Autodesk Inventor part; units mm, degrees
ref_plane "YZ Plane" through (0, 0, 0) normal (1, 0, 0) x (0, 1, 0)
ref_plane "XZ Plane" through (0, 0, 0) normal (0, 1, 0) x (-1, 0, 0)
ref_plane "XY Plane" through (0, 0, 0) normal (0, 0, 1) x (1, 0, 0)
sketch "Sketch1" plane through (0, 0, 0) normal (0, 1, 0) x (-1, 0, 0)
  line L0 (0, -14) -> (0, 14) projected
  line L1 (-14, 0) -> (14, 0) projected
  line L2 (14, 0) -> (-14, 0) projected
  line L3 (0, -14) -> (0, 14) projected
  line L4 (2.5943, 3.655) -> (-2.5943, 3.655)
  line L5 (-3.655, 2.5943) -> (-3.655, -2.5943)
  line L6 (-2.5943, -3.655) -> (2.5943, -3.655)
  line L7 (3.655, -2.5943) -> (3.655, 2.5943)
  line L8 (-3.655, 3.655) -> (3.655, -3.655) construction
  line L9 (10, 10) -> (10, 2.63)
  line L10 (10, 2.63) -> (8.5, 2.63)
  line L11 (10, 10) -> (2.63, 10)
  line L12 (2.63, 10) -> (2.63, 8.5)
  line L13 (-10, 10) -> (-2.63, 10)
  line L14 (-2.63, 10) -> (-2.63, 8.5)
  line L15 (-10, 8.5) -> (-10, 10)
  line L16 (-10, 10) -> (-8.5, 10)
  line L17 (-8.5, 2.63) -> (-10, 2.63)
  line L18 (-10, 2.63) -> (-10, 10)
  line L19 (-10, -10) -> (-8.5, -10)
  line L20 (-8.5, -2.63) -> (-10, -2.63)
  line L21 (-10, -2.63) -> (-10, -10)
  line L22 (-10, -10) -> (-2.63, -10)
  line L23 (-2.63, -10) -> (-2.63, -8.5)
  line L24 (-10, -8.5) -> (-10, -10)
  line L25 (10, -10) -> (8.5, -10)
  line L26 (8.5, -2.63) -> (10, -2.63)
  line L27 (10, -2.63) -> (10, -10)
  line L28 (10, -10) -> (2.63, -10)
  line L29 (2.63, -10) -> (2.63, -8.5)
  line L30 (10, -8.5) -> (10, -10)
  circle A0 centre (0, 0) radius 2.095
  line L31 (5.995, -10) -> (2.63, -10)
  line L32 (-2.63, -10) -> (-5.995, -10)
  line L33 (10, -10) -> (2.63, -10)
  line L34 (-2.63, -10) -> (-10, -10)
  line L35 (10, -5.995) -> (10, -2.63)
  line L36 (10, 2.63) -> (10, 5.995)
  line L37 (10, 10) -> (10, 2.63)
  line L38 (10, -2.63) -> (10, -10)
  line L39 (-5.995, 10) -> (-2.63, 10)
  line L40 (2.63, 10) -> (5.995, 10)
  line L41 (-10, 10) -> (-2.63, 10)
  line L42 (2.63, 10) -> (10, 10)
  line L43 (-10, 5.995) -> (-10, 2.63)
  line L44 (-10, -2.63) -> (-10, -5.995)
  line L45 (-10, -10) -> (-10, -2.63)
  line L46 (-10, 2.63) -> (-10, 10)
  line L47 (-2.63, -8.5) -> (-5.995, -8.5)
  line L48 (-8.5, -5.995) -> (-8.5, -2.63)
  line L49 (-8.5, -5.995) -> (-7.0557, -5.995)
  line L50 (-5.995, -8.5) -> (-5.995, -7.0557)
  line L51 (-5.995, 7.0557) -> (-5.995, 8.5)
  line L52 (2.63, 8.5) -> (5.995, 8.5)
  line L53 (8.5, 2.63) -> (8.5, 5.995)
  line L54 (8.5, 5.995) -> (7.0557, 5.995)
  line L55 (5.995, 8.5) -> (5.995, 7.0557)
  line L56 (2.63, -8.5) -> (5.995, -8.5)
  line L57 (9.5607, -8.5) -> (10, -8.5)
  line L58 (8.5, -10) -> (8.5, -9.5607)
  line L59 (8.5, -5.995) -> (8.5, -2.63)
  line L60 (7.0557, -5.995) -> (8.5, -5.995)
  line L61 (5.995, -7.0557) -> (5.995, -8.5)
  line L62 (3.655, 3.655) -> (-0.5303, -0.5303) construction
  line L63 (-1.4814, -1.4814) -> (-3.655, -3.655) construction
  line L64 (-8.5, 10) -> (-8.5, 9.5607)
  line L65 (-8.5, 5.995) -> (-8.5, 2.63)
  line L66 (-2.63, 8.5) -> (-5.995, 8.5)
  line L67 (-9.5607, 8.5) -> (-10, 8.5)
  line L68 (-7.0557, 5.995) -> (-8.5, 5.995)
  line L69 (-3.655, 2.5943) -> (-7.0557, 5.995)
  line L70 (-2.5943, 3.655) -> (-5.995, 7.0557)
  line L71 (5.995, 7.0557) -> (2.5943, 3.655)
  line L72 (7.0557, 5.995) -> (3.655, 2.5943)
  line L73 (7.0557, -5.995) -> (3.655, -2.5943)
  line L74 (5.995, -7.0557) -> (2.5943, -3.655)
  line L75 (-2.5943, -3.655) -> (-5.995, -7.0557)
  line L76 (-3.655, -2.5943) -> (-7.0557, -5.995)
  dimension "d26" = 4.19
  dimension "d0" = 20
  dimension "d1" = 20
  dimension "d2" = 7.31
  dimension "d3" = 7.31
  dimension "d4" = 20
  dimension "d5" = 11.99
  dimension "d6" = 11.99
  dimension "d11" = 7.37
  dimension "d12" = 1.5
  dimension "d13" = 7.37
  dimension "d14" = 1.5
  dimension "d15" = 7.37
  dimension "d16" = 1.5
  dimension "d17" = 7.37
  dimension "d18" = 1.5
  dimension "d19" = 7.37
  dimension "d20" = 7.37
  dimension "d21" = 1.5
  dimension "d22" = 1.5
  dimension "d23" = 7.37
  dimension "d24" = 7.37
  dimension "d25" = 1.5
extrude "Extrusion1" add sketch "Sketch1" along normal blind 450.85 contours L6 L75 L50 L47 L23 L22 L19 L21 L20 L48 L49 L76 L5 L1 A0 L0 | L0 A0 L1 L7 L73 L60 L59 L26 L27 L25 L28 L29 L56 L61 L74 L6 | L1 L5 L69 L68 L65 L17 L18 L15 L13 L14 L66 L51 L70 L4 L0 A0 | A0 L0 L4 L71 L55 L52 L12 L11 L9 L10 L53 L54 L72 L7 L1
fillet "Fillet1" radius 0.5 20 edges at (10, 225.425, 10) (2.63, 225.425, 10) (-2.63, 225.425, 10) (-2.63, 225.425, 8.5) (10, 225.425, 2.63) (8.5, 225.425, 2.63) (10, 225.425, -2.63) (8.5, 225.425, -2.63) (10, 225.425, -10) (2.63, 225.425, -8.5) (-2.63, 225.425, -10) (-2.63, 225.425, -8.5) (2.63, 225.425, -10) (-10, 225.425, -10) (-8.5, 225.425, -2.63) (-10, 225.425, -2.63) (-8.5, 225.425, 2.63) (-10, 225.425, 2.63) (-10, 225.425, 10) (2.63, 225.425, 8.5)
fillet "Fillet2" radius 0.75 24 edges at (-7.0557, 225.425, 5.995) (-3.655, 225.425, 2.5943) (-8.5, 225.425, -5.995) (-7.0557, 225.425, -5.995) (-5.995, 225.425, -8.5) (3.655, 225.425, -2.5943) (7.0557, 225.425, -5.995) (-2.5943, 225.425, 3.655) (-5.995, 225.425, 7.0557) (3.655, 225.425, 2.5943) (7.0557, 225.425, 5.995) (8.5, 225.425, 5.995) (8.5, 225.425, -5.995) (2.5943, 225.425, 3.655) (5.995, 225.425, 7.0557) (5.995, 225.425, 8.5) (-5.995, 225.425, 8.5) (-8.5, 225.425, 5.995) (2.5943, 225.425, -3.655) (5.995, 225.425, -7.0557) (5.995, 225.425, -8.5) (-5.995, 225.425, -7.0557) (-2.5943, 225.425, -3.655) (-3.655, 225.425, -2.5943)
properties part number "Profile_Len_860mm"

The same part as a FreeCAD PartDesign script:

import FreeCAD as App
import Part
import Sketcher
from FreeCAD import Vector


def edges_at(feature, points):
    """Names of the edges that pass closest to the given points."""
    edges = feature.Shape.Edges
    near = lambda p: min(range(len(edges)), key=lambda i: edges[i].distToShape(Part.Vertex(*p))[0])
    return sorted({f"Edge{near(p) + 1}" for p in points})

doc = App.newDocument("Part")
body = doc.addObject("PartDesign::Body", "Body")

# Sketch on XZ plane
sketch1 = body.newObject("Sketcher::SketchObject", "Sketch")
sketch1.AttachmentSupport = (doc.getObject("XZ_Plane"), [""])
sketch1.MapMode = "FlatFace"
sketch1.addGeometry([
    Part.LineSegment(Vector(2.6, -3.7, 0), Vector(-2.6, -3.7, 0)),  # 0
    Part.LineSegment(Vector(-2.6, -3.7, 0), Vector(-6, -7.1, 0)),  # 1
    Part.LineSegment(Vector(-6, -7.1, 0), Vector(-6, -8.5, 0)),  # 2
    Part.LineSegment(Vector(-6, -8.5, 0), Vector(-2.6, -8.5, 0)),  # 3
    Part.LineSegment(Vector(-2.6, -8.5, 0), Vector(-2.6, -10, 0)),  # 4
    Part.LineSegment(Vector(-2.6, -10, 0), Vector(-10, -10, 0)),  # 5
    Part.LineSegment(Vector(-10, -10, 0), Vector(-10, -2.6, 0)),  # 6
    Part.LineSegment(Vector(-10, -2.6, 0), Vector(-8.5, -2.6, 0)),  # 7
    Part.LineSegment(Vector(-8.5, -2.6, 0), Vector(-8.5, -6, 0)),  # 8
    Part.LineSegment(Vector(-8.5, -6, 0), Vector(-7.1, -6, 0)),  # 9
    Part.LineSegment(Vector(-7.1, -6, 0), Vector(-3.7, -2.6, 0)),  # 10
    Part.LineSegment(Vector(-3.7, -2.6, 0), Vector(-3.7, 2.6, 0)),  # 11
    Part.LineSegment(Vector(-3.7, 2.6, 0), Vector(-7.1, 6, 0)),  # 12
    Part.LineSegment(Vector(-7.1, 6, 0), Vector(-8.5, 6, 0)),  # 13
    Part.LineSegment(Vector(-8.5, 6, 0), Vector(-8.5, 2.6, 0)),  # 14
    Part.LineSegment(Vector(-8.5, 2.6, 0), Vector(-10, 2.6, 0)),  # 15
    Part.LineSegment(Vector(-10, 2.6, 0), Vector(-10, 10, 0)),  # 16
    Part.LineSegment(Vector(-10, 10, 0), Vector(-2.6, 10, 0)),  # 17
    Part.LineSegment(Vector(-2.6, 10, 0), Vector(-2.6, 8.5, 0)),  # 18
    Part.LineSegment(Vector(-2.6, 8.5, 0), Vector(-6, 8.5, 0)),  # 19
    Part.LineSegment(Vector(-6, 8.5, 0), Vector(-6, 7.1, 0)),  # 20
    Part.LineSegment(Vector(-6, 7.1, 0), Vector(-2.6, 3.7, 0)),  # 21
    Part.LineSegment(Vector(-2.6, 3.7, 0), Vector(2.6, 3.7, 0)),  # 22
    Part.LineSegment(Vector(2.6, 3.7, 0), Vector(6, 7.1, 0)),  # 23
    Part.LineSegment(Vector(6, 7.1, 0), Vector(6, 8.5, 0)),  # 24
    Part.LineSegment(Vector(6, 8.5, 0), Vector(2.6, 8.5, 0)),  # 25
    Part.LineSegment(Vector(2.6, 8.5, 0), Vector(2.6, 10, 0)),  # 26
    Part.LineSegment(Vector(2.6, 10, 0), Vector(10, 10, 0)),  # 27
    Part.LineSegment(Vector(10, 10, 0), Vector(10, 2.6, 0)),  # 28
    Part.LineSegment(Vector(10, 2.6, 0), Vector(8.5, 2.6, 0)),  # 29
    Part.LineSegment(Vector(8.5, 2.6, 0), Vector(8.5, 6, 0)),  # 30
    Part.LineSegment(Vector(8.5, 6, 0), Vector(7.1, 6, 0)),  # 31
    Part.LineSegment(Vector(7.1, 6, 0), Vector(3.7, 2.6, 0)),  # 32
    Part.LineSegment(Vector(3.7, 2.6, 0), Vector(3.7, -2.6, 0)),  # 33
    Part.LineSegment(Vector(3.7, -2.6, 0), Vector(7.1, -6, 0)),  # 34
    Part.LineSegment(Vector(7.1, -6, 0), Vector(8.5, -6, 0)),  # 35
    Part.LineSegment(Vector(8.5, -6, 0), Vector(8.5, -2.6, 0)),  # 36
    Part.LineSegment(Vector(8.5, -2.6, 0), Vector(10, -2.6, 0)),  # 37
    Part.LineSegment(Vector(10, -2.6, 0), Vector(10, -10, 0)),  # 38
    Part.LineSegment(Vector(10, -10, 0), Vector(2.6, -10, 0)),  # 39
    Part.LineSegment(Vector(2.6, -10, 0), Vector(2.6, -8.5, 0)),  # 40
    Part.LineSegment(Vector(2.6, -8.5, 0), Vector(6, -8.5, 0)),  # 41
    Part.LineSegment(Vector(6, -8.5, 0), Vector(6, -7.1, 0)),  # 42
    Part.LineSegment(Vector(6, -7.1, 0), Vector(2.6, -3.7, 0)),  # 43
    Part.Circle(Vector(0, 0, 0), Vector(0, 0, 1), 2.1),  # 44
], False)
sketch1.addConstraint([
    Sketcher.Constraint("Coincident", 0, 2, 1, 1),
    Sketcher.Constraint("Coincident", 1, 2, 2, 1),
    Sketcher.Constraint("Coincident", 2, 2, 3, 1),
    Sketcher.Constraint("Coincident", 3, 2, 4, 1),
    Sketcher.Constraint("Coincident", 4, 2, 5, 1),
    Sketcher.Constraint("Coincident", 5, 2, 6, 1),
    Sketcher.Constraint("Coincident", 6, 2, 7, 1),
    Sketcher.Constraint("Coincident", 7, 2, 8, 1),
    Sketcher.Constraint("Coincident", 8, 2, 9, 1),
    Sketcher.Constraint("Coincident", 9, 2, 10, 1),
    Sketcher.Constraint("Coincident", 10, 2, 11, 1),
    Sketcher.Constraint("Coincident", 11, 2, 12, 1),
    Sketcher.Constraint("Coincident", 12, 2, 13, 1),
    Sketcher.Constraint("Coincident", 13, 2, 14, 1),
    Sketcher.Constraint("Coincident", 14, 2, 15, 1),
    Sketcher.Constraint("Coincident", 15, 2, 16, 1),
    Sketcher.Constraint("Coincident", 16, 2, 17, 1),
    Sketcher.Constraint("Coincident", 17, 2, 18, 1),
    Sketcher.Constraint("Coincident", 18, 2, 19, 1),
    Sketcher.Constraint("Coincident", 19, 2, 20, 1),
    Sketcher.Constraint("Coincident", 20, 2, 21, 1),
    Sketcher.Constraint("Coincident", 21, 2, 22, 1),
    Sketcher.Constraint("Coincident", 22, 2, 23, 1),
    Sketcher.Constraint("Coincident", 23, 2, 24, 1),
    Sketcher.Constraint("Coincident", 24, 2, 25, 1),
    Sketcher.Constraint("Coincident", 25, 2, 26, 1),
    Sketcher.Constraint("Coincident", 26, 2, 27, 1),
    Sketcher.Constraint("Coincident", 27, 2, 28, 1),
    Sketcher.Constraint("Coincident", 28, 2, 29, 1),
    Sketcher.Constraint("Coincident", 29, 2, 30, 1),
    Sketcher.Constraint("Coincident", 30, 2, 31, 1),
    Sketcher.Constraint("Coincident", 31, 2, 32, 1),
    Sketcher.Constraint("Coincident", 32, 2, 33, 1),
    Sketcher.Constraint("Coincident", 33, 2, 34, 1),
    Sketcher.Constraint("Coincident", 34, 2, 35, 1),
    Sketcher.Constraint("Coincident", 35, 2, 36, 1),
    Sketcher.Constraint("Coincident", 36, 2, 37, 1),
    Sketcher.Constraint("Coincident", 37, 2, 38, 1),
    Sketcher.Constraint("Coincident", 38, 2, 39, 1),
    Sketcher.Constraint("Coincident", 39, 2, 40, 1),
    Sketcher.Constraint("Coincident", 40, 2, 41, 1),
    Sketcher.Constraint("Coincident", 41, 2, 42, 1),
    Sketcher.Constraint("Coincident", 42, 2, 43, 1),
    Sketcher.Constraint("Coincident", 43, 2, 0, 1),
    Sketcher.Constraint("Horizontal", 0),
    Sketcher.Constraint("Vertical", 2),
    Sketcher.Constraint("Horizontal", 3),
    Sketcher.Constraint("Vertical", 4),
    Sketcher.Constraint("Horizontal", 5),
    Sketcher.Constraint("Vertical", 6),
    Sketcher.Constraint("Horizontal", 7),
    Sketcher.Constraint("Vertical", 8),
    Sketcher.Constraint("Horizontal", 9),
    Sketcher.Constraint("Vertical", 11),
    Sketcher.Constraint("Horizontal", 13),
    Sketcher.Constraint("Vertical", 14),
    Sketcher.Constraint("Horizontal", 15),
    Sketcher.Constraint("Vertical", 16),
    Sketcher.Constraint("Horizontal", 17),
    Sketcher.Constraint("Vertical", 18),
    Sketcher.Constraint("Horizontal", 19),
    Sketcher.Constraint("Vertical", 20),
    Sketcher.Constraint("Horizontal", 22),
    Sketcher.Constraint("Vertical", 24),
    Sketcher.Constraint("Horizontal", 25),
    Sketcher.Constraint("Vertical", 26),
    Sketcher.Constraint("Horizontal", 27),
    Sketcher.Constraint("Vertical", 28),
    Sketcher.Constraint("Horizontal", 29),
    Sketcher.Constraint("Vertical", 30),
    Sketcher.Constraint("Horizontal", 31),
    Sketcher.Constraint("Vertical", 33),
    Sketcher.Constraint("Horizontal", 35),
    Sketcher.Constraint("Vertical", 36),
    Sketcher.Constraint("Horizontal", 37),
    Sketcher.Constraint("Vertical", 38),
    Sketcher.Constraint("Horizontal", 39),
    Sketcher.Constraint("Vertical", 40),
    Sketcher.Constraint("Horizontal", 41),
    Sketcher.Constraint("Vertical", 42),
    Sketcher.Constraint("Coincident", 44, 3, -1, 1),
    Sketcher.Constraint("Symmetric", 0, 2, 22, 2, -1, 1),
    Sketcher.Constraint("Symmetric", 1, 2, 23, 2, -1, 1),
    Sketcher.Constraint("Symmetric", 3, 2, 25, 2, -1, 1),
    Sketcher.Constraint("Symmetric", 5, 2, 27, 2, -1, 1),
    Sketcher.Constraint("Symmetric", 7, 2, 29, 2, -1, 1),
    Sketcher.Constraint("Symmetric", 9, 2, 31, 2, -1, 1),
    Sketcher.Constraint("Symmetric", 10, 2, 32, 2, -1, 1),
    Sketcher.Constraint("Symmetric", 12, 2, 34, 2, -1, 1),
    Sketcher.Constraint("Symmetric", 14, 2, 36, 2, -1, 1),
    Sketcher.Constraint("Symmetric", 16, 2, 38, 2, -1, 1),
    Sketcher.Constraint("Symmetric", 18, 2, 40, 2, -1, 1),
    Sketcher.Constraint("Symmetric", 20, 2, 42, 2, -1, 1),
    Sketcher.Constraint("Symmetric", 20, 2, 23, 2, -2),
    Sketcher.Constraint("Symmetric", 18, 2, 25, 2, -2),
    Sketcher.Constraint("Symmetric", 16, 2, 27, 2, -2),
    Sketcher.Constraint("Symmetric", 14, 2, 29, 2, -2),
    Sketcher.Constraint("Symmetric", 12, 2, 31, 2, -2),
    Sketcher.Constraint("Parallel", 1, 10),
    Sketcher.Constraint("Perpendicular", 10, 12),
    Sketcher.Constraint("Parallel", 12, 21),
    Sketcher.Constraint("Perpendicular", 32, 34),
    Sketcher.Constraint("Parallel", 34, 43),
    Sketcher.Constraint("Horizontal", 11, 2, 32, 2),
    Sketcher.Constraint("Equal", 35, 2),
    Sketcher.Constraint("Equal", 37, 4),
    Sketcher.Constraint("Equal", 39, 6),
    Sketcher.Constraint("Equal", 41, 8),
    Sketcher.Constraint("Equal", 22, 11),
    Sketcher.Constraint("Equal", 1, 10),
    Sketcher.Constraint("Diameter", 44, 4.19),
    Sketcher.Constraint("DistanceX", 7, 1, 7, 2, 1.5),
    Sketcher.Constraint("DistanceX", 5, 2, 5, 1, 7.37),
    Sketcher.Constraint("DistanceY", 4, 2, -1, 1, 10.0),
    Sketcher.Constraint("DistanceX", 3, 1, 3, 2, 3.365),
    Sketcher.Constraint("DistanceX", 1, 2, 10, 2, 2.34),
    Sketcher.Constraint("DistanceX", 0, 2, 0, 1, 5.1886),
])
pad1 = body.newObject("PartDesign::Pad", "Pad")
pad1.Profile = sketch1
pad1.Length = 450.85
pad1.Reversed = True
doc.recompute()

fillet = body.newObject("PartDesign::Fillet", "Fillet")
fillet.Base = (pad1, edges_at(pad1, [
    (10, 225.425, 10),
    (2.63, 225.425, 10),
    (-2.63, 225.425, 10),
    (-2.63, 225.425, 8.5),
    (10, 225.425, 2.63),
    (8.5, 225.425, 2.63),
    (10, 225.425, -2.63),
    (8.5, 225.425, -2.63),
    (10, 225.425, -10),
    (2.63, 225.425, -8.5),
    (-2.63, 225.425, -10),
    (-2.63, 225.425, -8.5),
    (2.63, 225.425, -10),
    (-10, 225.425, -10),
    (-8.5, 225.425, -2.63),
    (-10, 225.425, -2.63),
    (-8.5, 225.425, 2.63),
    (-10, 225.425, 2.63),
    (-10, 225.425, 10),
    (2.63, 225.425, 8.5),
]))
fillet.Radius = 0.5
doc.recompute()

fillet2 = body.newObject("PartDesign::Fillet", "Fillet001")
fillet2.Base = (fillet, edges_at(fillet, [
    (-7.056, 225.425, 5.995),
    (-3.655, 225.425, 2.594),
    (-8.5, 225.425, -5.995),
    (-7.056, 225.425, -5.995),
    (-5.995, 225.425, -8.5),
    (3.655, 225.425, -2.594),
    (7.056, 225.425, -5.995),
    (-2.594, 225.425, 3.655),
    (-5.995, 225.425, 7.056),
    (3.655, 225.425, 2.594),
    (7.056, 225.425, 5.995),
    (8.5, 225.425, 5.995),
    (8.5, 225.425, -5.995),
    (2.594, 225.425, 3.655),
    (5.995, 225.425, 7.056),
    (5.995, 225.425, 8.5),
    (-5.995, 225.425, 8.5),
    (-8.5, 225.425, 5.995),
    (2.594, 225.425, -3.655),
    (5.995, 225.425, -7.056),
    (5.995, 225.425, -8.5),
    (-5.995, 225.425, -7.056),
    (-2.594, 225.425, -3.655),
    (-3.655, 225.425, -2.594),
]))
fillet2.Radius = 0.75

doc.recompute()
